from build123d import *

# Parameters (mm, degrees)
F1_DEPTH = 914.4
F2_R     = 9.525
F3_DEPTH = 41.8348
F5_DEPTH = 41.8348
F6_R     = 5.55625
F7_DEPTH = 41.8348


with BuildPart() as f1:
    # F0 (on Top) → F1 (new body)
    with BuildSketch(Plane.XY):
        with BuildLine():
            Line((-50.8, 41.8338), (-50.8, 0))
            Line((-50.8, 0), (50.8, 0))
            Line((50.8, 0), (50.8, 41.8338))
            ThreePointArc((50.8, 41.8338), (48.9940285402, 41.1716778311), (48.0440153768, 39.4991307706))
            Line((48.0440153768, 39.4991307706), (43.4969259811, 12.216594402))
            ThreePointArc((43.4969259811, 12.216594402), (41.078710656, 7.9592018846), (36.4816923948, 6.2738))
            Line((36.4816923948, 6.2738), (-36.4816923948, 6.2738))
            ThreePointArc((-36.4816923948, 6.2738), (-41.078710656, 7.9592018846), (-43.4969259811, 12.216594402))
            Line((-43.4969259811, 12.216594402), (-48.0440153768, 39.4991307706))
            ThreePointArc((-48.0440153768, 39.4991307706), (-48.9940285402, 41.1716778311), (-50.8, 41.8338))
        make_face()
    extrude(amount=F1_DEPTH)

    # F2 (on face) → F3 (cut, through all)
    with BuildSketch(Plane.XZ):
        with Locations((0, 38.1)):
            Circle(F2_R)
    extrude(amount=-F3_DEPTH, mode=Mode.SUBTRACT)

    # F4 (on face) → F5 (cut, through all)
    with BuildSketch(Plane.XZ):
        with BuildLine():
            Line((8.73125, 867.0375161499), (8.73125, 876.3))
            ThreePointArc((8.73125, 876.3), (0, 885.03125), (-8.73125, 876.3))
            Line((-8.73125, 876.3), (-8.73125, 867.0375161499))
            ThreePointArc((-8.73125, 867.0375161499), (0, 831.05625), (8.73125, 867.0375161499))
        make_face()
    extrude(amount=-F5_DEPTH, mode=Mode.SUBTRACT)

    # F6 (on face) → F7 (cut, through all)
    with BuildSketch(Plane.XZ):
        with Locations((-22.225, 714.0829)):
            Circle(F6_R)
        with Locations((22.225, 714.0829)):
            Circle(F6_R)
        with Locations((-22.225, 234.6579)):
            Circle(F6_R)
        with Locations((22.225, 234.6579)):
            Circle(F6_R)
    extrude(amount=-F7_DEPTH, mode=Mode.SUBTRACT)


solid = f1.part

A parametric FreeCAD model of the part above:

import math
import FreeCAD as App
import Part
import Sketcher

V = App.Vector
Q = App.Units.Quantity

doc = App.newDocument("Part")
body = doc.addObject("PartDesign::Body", "Body")

# Sketch on XY plane
sketch1 = doc.addObject("Sketcher::SketchObject", "Sketch")
body.addObject(sketch1)
sketch1.AttachmentSupport = (doc.XY_Plane, [""])
sketch1.MapMode = "FlatFace"
sketch1.addGeometry([
    Part.LineSegment(V(-50.8, 41.8338, 0), V(-50.8, 0, 0)),  # 0
    Part.LineSegment(V(-50.8, 0, 0), V(50.8, 0, 0)),  # 1
    Part.LineSegment(V(50.8, 0, 0), V(50.8, 41.8338, 0)),  # 2
    Part.ArcOfCircle(Part.Circle(V(50.8, 39.0398, 0), V(0, 0, 1), 2.794), math.radians(90), math.radians(170.537678)),  # 3
    Part.LineSegment(V(48.044015, 39.499131, 0), V(43.496926, 12.216594, 0)),  # 4
    Part.ArcOfCircle(Part.Circle(V(36.481692, 13.3858, 0), V(0, 0, 1), 7.112), math.radians(-90), math.radians(-9.462322)),  # 5
    Part.LineSegment(V(36.481692, 6.2738, 0), V(-36.481692, 6.2738, 0)),  # 6
    Part.ArcOfCircle(Part.Circle(V(-36.481692, 13.3858, 0), V(0, 0, 1), 7.112), math.radians(-170.537678), math.radians(-90)),  # 7
    Part.LineSegment(V(-43.496926, 12.216594, 0), V(-48.044015, 39.499131, 0)),  # 8
    Part.ArcOfCircle(Part.Circle(V(-50.8, 39.0398, 0), V(0, 0, 1), 2.794), math.radians(9.462322), math.radians(90)),  # 9
], False)
sketch1.addConstraint([
    Sketcher.Constraint("Coincident", 0, 2, 1, 1),
    Sketcher.Constraint("Coincident", 1, 2, 2, 1),
    Sketcher.Constraint("Coincident", 2, 2, 3, 1),
    Sketcher.Constraint("Tangent", 3, 2, 4, 1),
    Sketcher.Constraint("Tangent", 4, 2, 5, 2),
    Sketcher.Constraint("Tangent", 5, 1, 6, 1),
    Sketcher.Constraint("Tangent", 6, 2, 7, 2),
    Sketcher.Constraint("Tangent", 7, 1, 8, 1),
    Sketcher.Constraint("Tangent", 8, 2, 9, 1),
    Sketcher.Constraint("Coincident", 9, 2, 0, 1),
    Sketcher.Constraint("Vertical", 0),
    Sketcher.Constraint("Horizontal", 1),
    Sketcher.Constraint("Vertical", 2),
    Sketcher.Constraint("Horizontal", 6),
    Sketcher.Constraint("Equal", 5, 7),
    Sketcher.Constraint("Equal", 3, 9),
    Sketcher.Constraint("Symmetric", 0, 2, 1, 2, -1, 1),
    Sketcher.Constraint("Symmetric", 3, 3, 9, 3, -2),
    Sketcher.Constraint("Horizontal", 4, 2, 7, 1),
    Sketcher.Constraint("Vertical", 9, 3, 0, 2),
    Sketcher.Constraint("DistanceX", 1, 1, 1, 2, Q("4 in")),
    Sketcher.Constraint("Radius", 3, Q("0.11 in")),
    Sketcher.Constraint("Radius", 5, Q("0.28 in")),
    Sketcher.Constraint("DistanceY", 6, 2, 9, 2, Q("1.4 in")),
    Sketcher.Constraint("DistanceY", 0, 2, 0, 1, Q("1.647 in")),
    Sketcher.Constraint("DistanceX", 6, 2, 6, 1, 72.963385),
])
pad1 = doc.addObject("PartDesign::Pad", "Pad")
body.addObject(pad1)
pad1.Profile = sketch1
pad1.Length = Q("36 in")

# Sketch on XZ plane
sketch2 = doc.addObject("Sketcher::SketchObject", "Sketch001")
body.addObject(sketch2)
sketch2.AttachmentSupport = (doc.XZ_Plane, [""])
sketch2.MapMode = "FlatFace"
sketch2.addGeometry(Part.Circle(V(0, 38.1, 0), V(0, 0, 1), 9.525), False)
sketch2.addConstraint([
    Sketcher.Constraint("PointOnObject", 0, 3, -2),
    Sketcher.Constraint("Diameter", 0, Q("0.75 in")),
    Sketcher.Constraint("DistanceY", -1, 1, 0, 3, Q("1.5 in")),
])
pocket1 = doc.addObject("PartDesign::Pocket", "Pocket")
body.addObject(pocket1)
pocket1.Profile = sketch2
pocket1.Type = "ThroughAll"

# Sketch on XZ plane
sketch3 = doc.addObject("Sketcher::SketchObject", "Sketch002")
body.addObject(sketch3)
sketch3.AttachmentSupport = (doc.XZ_Plane, [""])
sketch3.MapMode = "FlatFace"
sketch3.addGeometry([
    Part.LineSegment(V(8.73125, 867.037516, 0), V(8.73125, 876.3, 0)),
    Part.ArcOfCircle(Part.Circle(V(0, 876.3, 0), V(0, 0, 1), 8.73125), math.radians(0), math.radians(180)),
    Part.LineSegment(V(-8.73125, 876.3, 0), V(-8.73125, 867.037516, 0)),
    Part.ArcOfCircle(Part.Circle(V(0, 850.10625, 0), V(0, 0, 1), 19.05), math.radians(117.279613), math.radians(422.720387)),
], False)
sketch3.addConstraint([
    Sketcher.Constraint("Tangent", 0, 2, 1, 1),
    Sketcher.Constraint("Tangent", 1, 2, 2, 1),
    Sketcher.Constraint("Coincident", 2, 2, 3, 1),
    Sketcher.Constraint("Coincident", 3, 2, 0, 1),
    Sketcher.Constraint("Vertical", 0),
    Sketcher.Constraint("Vertical", 2),
    Sketcher.Constraint("Symmetric", 2, 2, 3, 2, -2),
    Sketcher.Constraint("Radius", 3, Q("0.75 in")),
    Sketcher.Constraint("Radius", 1, Q("0.34375 in")),
    Sketcher.Constraint("DistanceY", -1, 1, 1, 3, Q("34.5 in")),
    Sketcher.Constraint("DistanceY", -1, 1, 3, 3, Q("33.46875 in")),
])
pocket2 = doc.addObject("PartDesign::Pocket", "Pocket001")
body.addObject(pocket2)
pocket2.Profile = sketch3
pocket2.Type = "ThroughAll"

# Sketch on XZ plane
sketch4 = doc.addObject("Sketcher::SketchObject", "Sketch003")
body.addObject(sketch4)
sketch4.AttachmentSupport = (doc.XZ_Plane, [""])
sketch4.MapMode = "FlatFace"
sketch4.addGeometry([
    Part.Circle(V(-22.225, 714.0829, 0), V(0, 0, 1), 5.55625),
    Part.Circle(V(22.225, 714.0829, 0), V(0, 0, 1), 5.55625),
    Part.Circle(V(-22.225, 234.6579, 0), V(0, 0, 1), 5.55625),
    Part.Circle(V(22.225, 234.6579, 0), V(0, 0, 1), 5.55625),
], False)
sketch4.addConstraint([
    Sketcher.Constraint("Equal", 0, 1),
    Sketcher.Constraint("Equal", 1, 2),
    Sketcher.Constraint("Equal", 2, 3),
    Sketcher.Constraint("Symmetric", 0, 3, 1, 3, -2),
    Sketcher.Constraint("Symmetric", 2, 3, 3, 3, -2),
    Sketcher.Constraint("Vertical", 0, 3, 2, 3),
    Sketcher.Constraint("Diameter", 0, Q("0.4375 in")),
    Sketcher.Constraint("DistanceX", 0, 3, 1, 3, Q("1.75 in")),
    Sketcher.Constraint("DistanceY", 2, 3, 0, 3, Q("18.875 in")),
    Sketcher.Constraint("DistanceY", -1, 1, 0, 3, Q("28.1135 in")),
])
pocket3 = doc.addObject("PartDesign::Pocket", "Pocket002")
body.addObject(pocket3)
pocket3.Profile = sketch4
pocket3.Type = "ThroughAll"

doc.recompute()
